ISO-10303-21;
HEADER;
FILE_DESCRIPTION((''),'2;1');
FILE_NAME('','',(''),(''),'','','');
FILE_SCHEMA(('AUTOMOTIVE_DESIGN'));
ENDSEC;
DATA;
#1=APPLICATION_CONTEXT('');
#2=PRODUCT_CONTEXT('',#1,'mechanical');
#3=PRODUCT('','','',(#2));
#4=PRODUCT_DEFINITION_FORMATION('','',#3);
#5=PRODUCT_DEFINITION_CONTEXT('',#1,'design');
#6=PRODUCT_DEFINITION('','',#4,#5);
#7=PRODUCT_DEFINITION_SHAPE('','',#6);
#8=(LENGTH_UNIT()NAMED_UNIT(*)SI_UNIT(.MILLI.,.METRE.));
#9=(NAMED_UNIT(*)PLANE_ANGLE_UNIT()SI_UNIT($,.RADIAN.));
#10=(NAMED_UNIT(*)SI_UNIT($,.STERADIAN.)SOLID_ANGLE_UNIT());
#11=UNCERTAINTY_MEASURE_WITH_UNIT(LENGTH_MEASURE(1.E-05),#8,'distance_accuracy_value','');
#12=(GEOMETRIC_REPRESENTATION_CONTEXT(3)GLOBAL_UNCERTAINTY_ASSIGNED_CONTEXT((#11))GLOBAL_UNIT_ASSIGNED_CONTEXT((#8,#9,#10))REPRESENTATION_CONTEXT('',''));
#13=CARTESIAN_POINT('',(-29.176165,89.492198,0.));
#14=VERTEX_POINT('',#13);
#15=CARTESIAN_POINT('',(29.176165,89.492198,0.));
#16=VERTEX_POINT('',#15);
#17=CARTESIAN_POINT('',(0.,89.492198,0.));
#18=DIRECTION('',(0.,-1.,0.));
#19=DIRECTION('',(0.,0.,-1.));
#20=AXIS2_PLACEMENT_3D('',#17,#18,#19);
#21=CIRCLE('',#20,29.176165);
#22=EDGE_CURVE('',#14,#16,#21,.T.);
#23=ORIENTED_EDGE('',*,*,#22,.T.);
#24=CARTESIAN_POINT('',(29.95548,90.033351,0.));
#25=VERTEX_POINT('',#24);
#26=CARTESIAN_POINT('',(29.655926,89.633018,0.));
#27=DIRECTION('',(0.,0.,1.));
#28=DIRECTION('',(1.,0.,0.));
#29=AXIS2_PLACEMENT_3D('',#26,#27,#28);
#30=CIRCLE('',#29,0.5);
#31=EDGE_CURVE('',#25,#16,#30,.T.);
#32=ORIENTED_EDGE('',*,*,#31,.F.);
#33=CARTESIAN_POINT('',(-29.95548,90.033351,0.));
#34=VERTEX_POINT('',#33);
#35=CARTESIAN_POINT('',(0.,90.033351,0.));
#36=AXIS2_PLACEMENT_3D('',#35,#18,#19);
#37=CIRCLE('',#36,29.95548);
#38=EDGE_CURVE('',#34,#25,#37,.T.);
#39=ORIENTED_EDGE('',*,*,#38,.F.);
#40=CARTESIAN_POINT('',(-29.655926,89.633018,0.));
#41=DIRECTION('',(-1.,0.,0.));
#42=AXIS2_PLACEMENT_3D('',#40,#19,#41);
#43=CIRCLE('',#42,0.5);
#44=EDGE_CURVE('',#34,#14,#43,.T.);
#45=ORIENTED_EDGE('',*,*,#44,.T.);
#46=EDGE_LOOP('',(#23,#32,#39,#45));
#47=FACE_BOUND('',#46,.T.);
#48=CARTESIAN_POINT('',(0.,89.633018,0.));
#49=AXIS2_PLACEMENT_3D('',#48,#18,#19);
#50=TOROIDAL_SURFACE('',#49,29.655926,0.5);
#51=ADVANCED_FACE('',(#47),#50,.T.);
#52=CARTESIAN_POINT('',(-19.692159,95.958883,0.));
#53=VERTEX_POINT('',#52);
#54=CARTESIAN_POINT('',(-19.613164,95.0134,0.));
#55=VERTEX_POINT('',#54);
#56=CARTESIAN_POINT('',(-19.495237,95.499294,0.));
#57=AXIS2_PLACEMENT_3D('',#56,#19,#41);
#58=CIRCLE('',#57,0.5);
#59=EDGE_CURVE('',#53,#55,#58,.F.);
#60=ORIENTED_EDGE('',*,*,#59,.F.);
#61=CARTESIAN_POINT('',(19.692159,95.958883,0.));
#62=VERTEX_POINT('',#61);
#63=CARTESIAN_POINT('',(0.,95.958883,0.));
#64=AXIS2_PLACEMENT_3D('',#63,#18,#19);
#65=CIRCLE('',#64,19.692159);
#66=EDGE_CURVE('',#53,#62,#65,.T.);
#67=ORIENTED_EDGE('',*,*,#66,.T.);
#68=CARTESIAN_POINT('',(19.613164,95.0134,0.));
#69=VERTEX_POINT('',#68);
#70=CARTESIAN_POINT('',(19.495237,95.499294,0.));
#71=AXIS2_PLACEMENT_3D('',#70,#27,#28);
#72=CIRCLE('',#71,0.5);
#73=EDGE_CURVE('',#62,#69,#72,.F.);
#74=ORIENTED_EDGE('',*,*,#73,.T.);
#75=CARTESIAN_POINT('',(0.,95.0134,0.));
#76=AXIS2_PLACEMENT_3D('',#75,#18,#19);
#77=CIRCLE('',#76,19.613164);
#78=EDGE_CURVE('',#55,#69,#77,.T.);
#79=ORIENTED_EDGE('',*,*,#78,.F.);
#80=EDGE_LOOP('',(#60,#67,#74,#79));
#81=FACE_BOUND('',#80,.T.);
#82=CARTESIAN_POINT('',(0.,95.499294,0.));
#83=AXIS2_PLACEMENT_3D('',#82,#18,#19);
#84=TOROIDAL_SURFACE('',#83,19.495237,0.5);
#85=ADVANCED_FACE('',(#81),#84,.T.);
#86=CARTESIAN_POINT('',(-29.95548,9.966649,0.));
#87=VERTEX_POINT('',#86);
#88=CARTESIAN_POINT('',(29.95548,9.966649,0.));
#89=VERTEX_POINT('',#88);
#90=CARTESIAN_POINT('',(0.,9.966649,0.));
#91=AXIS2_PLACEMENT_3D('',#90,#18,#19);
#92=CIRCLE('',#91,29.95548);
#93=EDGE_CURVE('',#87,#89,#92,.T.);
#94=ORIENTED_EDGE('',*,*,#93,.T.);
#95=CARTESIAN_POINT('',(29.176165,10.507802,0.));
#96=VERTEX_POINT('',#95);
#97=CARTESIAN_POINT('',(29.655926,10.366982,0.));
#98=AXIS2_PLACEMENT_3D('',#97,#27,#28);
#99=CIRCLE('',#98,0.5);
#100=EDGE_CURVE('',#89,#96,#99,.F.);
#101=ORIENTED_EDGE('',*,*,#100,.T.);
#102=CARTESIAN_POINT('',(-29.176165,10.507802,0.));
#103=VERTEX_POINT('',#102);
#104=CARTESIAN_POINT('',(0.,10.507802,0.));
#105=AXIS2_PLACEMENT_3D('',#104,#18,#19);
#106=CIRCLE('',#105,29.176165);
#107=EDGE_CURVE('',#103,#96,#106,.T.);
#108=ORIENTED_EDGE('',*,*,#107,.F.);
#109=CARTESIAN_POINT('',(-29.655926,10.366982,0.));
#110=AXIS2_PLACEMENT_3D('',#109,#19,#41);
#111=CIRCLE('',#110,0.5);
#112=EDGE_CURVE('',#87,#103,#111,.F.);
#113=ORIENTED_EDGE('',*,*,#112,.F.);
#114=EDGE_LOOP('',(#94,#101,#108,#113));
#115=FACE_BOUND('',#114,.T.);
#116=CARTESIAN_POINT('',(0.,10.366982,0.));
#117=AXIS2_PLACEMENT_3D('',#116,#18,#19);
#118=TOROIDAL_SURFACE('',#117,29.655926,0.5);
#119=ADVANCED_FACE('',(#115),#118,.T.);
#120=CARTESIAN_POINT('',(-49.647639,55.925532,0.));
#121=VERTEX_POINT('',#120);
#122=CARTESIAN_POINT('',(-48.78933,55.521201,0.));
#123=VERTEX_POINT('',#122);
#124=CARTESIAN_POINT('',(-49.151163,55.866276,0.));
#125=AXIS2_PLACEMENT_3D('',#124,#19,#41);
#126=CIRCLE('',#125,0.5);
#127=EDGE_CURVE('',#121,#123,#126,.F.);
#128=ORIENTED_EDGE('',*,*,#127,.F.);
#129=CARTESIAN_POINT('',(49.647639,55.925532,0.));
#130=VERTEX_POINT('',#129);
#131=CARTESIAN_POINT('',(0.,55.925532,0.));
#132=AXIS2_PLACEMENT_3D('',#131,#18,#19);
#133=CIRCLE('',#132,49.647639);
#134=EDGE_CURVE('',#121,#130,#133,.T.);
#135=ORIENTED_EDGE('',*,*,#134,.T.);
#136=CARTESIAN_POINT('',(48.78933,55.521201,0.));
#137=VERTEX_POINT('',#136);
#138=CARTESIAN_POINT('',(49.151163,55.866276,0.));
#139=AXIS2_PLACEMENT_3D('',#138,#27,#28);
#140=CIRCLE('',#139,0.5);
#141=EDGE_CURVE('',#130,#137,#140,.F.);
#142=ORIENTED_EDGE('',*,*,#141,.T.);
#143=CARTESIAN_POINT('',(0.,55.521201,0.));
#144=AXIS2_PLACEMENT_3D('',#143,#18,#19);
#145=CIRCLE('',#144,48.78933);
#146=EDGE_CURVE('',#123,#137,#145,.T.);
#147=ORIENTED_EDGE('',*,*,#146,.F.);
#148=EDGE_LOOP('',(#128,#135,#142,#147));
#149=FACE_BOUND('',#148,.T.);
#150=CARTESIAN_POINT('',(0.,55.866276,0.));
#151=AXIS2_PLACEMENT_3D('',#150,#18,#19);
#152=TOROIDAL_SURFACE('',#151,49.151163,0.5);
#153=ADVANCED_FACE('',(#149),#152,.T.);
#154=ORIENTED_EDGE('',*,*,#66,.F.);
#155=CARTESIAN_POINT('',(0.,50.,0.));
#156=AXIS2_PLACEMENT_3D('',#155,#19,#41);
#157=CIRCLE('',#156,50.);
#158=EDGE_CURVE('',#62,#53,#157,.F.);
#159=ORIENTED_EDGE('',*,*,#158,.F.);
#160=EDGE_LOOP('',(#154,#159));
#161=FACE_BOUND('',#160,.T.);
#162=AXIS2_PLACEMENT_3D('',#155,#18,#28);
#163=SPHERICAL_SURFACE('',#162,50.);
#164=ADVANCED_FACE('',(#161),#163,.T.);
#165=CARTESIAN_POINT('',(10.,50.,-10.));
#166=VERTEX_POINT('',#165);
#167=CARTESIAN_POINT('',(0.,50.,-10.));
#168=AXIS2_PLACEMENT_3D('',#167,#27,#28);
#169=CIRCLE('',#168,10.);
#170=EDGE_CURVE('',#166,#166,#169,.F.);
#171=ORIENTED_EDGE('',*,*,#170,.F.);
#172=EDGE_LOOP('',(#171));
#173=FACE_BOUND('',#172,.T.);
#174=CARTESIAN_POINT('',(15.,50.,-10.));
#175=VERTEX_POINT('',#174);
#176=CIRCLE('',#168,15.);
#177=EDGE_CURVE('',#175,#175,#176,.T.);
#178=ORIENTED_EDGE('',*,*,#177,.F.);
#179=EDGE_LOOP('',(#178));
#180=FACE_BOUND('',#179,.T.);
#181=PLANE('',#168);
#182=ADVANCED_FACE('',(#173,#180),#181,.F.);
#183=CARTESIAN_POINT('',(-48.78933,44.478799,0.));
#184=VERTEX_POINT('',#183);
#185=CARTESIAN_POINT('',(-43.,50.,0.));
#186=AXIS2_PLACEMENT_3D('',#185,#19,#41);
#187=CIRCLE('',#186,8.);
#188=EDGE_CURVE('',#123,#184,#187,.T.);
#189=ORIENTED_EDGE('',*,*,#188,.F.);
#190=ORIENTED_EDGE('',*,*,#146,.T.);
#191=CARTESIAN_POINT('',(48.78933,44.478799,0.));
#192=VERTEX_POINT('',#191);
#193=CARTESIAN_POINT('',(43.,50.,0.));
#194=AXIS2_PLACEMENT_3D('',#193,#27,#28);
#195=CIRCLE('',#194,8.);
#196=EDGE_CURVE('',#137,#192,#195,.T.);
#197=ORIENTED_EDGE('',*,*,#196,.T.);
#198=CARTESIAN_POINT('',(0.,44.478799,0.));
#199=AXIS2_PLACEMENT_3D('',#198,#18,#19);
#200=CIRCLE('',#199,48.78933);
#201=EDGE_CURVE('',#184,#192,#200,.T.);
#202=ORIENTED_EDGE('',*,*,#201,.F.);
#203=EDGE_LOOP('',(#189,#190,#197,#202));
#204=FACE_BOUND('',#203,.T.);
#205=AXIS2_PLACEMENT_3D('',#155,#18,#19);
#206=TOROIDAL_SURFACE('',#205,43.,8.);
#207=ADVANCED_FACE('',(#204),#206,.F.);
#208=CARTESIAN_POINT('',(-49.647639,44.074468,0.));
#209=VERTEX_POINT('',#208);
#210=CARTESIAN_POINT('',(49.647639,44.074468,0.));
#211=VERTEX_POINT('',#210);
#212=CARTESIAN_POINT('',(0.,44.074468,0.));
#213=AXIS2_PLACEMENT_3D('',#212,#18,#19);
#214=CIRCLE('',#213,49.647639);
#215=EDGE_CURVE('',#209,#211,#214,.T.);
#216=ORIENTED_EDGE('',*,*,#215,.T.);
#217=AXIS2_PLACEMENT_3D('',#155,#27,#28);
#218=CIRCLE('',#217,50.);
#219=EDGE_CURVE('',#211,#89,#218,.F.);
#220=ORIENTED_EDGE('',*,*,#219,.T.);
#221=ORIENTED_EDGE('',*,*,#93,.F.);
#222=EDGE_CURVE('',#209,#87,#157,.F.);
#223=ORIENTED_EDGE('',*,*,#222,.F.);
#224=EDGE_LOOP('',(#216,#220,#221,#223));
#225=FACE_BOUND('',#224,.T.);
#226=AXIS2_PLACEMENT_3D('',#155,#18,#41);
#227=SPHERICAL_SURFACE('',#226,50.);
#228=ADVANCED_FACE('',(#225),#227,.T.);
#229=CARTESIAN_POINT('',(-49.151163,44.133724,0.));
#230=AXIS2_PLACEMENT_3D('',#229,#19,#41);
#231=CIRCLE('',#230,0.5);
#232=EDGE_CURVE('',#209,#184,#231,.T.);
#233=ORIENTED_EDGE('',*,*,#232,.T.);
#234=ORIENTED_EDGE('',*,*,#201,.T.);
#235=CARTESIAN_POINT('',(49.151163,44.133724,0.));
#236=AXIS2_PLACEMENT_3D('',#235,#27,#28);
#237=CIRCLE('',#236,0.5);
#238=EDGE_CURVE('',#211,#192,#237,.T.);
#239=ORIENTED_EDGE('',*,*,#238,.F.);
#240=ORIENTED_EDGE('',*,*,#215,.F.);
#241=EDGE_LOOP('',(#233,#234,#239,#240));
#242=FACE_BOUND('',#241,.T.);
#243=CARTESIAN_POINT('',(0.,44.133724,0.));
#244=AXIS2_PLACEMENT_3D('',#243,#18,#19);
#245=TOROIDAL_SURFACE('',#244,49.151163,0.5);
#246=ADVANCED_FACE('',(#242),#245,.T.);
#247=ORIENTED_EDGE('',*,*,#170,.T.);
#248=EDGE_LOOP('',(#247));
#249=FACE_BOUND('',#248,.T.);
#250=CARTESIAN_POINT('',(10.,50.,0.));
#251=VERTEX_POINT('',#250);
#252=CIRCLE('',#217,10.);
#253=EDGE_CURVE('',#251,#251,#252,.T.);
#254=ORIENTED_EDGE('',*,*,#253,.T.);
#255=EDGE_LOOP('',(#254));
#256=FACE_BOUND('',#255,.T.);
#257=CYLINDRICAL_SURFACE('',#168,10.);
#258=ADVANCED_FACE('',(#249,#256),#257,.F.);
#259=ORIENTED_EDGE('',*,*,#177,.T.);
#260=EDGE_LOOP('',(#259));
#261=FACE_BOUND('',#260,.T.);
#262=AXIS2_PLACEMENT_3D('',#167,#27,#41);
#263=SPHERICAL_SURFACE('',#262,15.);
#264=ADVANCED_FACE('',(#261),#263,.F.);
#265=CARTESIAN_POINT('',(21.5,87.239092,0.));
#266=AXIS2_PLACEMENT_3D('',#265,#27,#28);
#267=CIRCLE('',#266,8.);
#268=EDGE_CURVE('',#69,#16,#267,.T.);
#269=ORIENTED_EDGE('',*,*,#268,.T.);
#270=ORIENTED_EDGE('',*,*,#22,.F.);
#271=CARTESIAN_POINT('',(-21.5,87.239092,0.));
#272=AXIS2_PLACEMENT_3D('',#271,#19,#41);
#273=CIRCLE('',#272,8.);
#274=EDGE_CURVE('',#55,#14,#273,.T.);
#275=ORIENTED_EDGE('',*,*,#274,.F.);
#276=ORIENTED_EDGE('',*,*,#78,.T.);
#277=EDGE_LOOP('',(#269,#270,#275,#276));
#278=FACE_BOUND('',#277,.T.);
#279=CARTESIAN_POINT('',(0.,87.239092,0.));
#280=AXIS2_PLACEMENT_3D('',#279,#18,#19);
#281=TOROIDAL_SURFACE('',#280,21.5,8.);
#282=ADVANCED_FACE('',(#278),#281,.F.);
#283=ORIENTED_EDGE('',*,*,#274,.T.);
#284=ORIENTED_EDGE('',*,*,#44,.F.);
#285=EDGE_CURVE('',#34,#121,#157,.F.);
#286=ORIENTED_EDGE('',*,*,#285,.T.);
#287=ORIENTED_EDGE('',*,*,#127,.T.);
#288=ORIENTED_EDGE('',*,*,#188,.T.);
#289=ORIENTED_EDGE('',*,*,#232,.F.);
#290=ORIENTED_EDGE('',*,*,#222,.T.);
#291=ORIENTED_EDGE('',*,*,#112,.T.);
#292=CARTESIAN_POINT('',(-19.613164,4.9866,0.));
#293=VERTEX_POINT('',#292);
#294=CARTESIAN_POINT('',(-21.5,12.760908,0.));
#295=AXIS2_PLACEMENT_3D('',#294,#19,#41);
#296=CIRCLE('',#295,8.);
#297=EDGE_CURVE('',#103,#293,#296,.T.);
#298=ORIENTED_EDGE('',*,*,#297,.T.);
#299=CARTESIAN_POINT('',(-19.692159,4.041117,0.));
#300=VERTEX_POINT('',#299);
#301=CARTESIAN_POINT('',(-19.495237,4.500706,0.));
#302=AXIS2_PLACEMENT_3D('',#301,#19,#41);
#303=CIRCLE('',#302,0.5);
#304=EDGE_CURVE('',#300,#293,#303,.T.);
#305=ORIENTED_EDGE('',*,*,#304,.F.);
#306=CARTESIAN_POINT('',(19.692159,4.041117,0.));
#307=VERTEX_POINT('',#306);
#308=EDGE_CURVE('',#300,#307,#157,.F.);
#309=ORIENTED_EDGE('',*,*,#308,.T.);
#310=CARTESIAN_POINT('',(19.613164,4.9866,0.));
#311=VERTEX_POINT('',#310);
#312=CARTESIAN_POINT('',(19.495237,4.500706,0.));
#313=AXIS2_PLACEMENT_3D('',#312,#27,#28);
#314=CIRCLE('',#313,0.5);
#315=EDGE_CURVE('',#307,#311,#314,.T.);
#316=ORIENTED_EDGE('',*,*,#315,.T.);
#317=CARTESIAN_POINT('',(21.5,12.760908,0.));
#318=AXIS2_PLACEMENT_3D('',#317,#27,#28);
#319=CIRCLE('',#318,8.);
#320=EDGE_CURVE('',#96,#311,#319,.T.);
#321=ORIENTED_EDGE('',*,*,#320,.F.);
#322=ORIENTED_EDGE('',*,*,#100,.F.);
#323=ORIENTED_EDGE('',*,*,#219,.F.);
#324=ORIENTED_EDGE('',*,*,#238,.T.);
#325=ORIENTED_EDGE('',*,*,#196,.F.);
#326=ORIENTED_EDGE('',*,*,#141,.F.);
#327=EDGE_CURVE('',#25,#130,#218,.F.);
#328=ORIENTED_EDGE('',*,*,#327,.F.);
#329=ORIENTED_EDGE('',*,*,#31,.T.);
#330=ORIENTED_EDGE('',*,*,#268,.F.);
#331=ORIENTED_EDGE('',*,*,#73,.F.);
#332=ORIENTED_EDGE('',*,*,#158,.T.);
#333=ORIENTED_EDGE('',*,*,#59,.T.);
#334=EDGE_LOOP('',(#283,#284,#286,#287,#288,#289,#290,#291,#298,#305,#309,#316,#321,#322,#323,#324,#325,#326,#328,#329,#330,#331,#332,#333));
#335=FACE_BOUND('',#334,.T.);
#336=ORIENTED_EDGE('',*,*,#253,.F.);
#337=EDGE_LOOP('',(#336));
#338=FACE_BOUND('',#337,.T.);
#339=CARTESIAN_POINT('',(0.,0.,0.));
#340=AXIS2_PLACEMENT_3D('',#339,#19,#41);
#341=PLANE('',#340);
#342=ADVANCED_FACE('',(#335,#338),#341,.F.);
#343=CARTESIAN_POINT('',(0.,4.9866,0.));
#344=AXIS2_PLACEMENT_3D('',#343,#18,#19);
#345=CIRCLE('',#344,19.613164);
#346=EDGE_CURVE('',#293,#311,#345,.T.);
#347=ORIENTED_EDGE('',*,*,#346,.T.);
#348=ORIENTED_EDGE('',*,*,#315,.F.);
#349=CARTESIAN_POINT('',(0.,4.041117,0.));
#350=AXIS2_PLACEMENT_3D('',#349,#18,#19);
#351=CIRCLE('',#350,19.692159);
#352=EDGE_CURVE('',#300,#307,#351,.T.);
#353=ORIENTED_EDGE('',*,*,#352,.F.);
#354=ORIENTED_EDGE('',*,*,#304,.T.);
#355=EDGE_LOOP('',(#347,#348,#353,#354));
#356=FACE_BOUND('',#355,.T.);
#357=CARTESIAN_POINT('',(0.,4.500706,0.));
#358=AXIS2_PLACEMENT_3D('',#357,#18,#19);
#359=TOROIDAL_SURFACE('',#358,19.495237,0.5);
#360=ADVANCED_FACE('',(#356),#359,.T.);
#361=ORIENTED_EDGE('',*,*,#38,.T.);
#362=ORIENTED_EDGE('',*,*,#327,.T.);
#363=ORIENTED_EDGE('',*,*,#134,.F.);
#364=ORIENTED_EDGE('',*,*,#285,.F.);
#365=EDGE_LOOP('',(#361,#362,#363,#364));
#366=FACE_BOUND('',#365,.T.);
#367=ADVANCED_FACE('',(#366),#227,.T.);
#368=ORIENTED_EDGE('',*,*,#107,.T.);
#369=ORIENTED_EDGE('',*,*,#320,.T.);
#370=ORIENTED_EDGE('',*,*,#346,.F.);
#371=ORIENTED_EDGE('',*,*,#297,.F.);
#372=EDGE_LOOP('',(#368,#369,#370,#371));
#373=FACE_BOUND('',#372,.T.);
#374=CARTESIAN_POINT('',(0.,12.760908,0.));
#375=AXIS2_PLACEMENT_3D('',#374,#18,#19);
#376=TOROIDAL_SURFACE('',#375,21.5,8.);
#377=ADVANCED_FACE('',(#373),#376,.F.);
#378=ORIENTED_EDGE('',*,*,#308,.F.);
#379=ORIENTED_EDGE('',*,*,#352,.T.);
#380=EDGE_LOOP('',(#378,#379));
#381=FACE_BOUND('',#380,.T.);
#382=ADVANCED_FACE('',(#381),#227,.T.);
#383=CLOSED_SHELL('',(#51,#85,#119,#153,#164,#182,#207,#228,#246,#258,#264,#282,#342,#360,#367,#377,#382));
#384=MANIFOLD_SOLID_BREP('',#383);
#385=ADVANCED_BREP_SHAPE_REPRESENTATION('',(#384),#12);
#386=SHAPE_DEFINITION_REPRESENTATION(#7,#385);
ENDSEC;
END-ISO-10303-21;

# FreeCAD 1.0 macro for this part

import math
import FreeCAD as App
import Part
import Sketcher

doc = App.newDocument("Part")
body = doc.addObject("PartDesign::Body", "Body")

# Sketch on XY plane
sketch1 = body.newObject("Sketcher::SketchObject", "Sketch")
sketch1.AttachmentSupport = (doc.getObject("XY_Plane"), [""])
sketch1.MapMode = "FlatFace"
sketch1.addGeometry(Part.LineSegment(App.Vector(0, 100, 0), App.Vector(0, 0, 0)), False)
sketch1.addGeometry(Part.ArcOfCircle(Part.Circle(App.Vector(0, 50, 0), App.Vector(0, 0, 1), 50), math.radians(-90), math.radians(-67)), False)
sketch1.addGeometry(Part.ArcOfCircle(Part.Circle(App.Vector(19.5, 4.5, 0), App.Vector(0, 0, 1), 0.5), math.radians(-67), math.radians(76)), False)
sketch1.addGeometry(Part.ArcOfCircle(Part.Circle(App.Vector(21.5, 12.8, 0), App.Vector(0, 0, 1), 8), math.radians(-16), math.radians(256)), False)
sketch1.addGeometry(Part.ArcOfCircle(Part.Circle(App.Vector(29.7, 10.4, 0), App.Vector(0, 0, 1), 0.5), math.radians(164), math.radians(307)), False)
sketch1.addGeometry(Part.ArcOfCircle(Part.Circle(App.Vector(0, 50, 0), App.Vector(0, 0, 1), 50), math.radians(-53), math.radians(-7)), False)
sketch1.addGeometry(Part.ArcOfCircle(Part.Circle(App.Vector(49.2, 44.1, 0), App.Vector(0, 0, 1), 0.5), math.radians(-7), math.radians(136)), False)
sketch1.addGeometry(Part.ArcOfCircle(Part.Circle(App.Vector(43, 50, 0), App.Vector(0, 0, 1), 8), math.radians(44), math.radians(316)), False)
sketch1.addGeometry(Part.ArcOfCircle(Part.Circle(App.Vector(49.2, 55.9, 0), App.Vector(0, 0, 1), 0.5), math.radians(-136), math.radians(7)), False)
sketch1.addGeometry(Part.ArcOfCircle(Part.Circle(App.Vector(0, 50, 0), App.Vector(0, 0, 1), 50), math.radians(7), math.radians(53)), False)
sketch1.addGeometry(Part.ArcOfCircle(Part.Circle(App.Vector(29.7, 89.6, 0), App.Vector(0, 0, 1), 0.5), math.radians(53), math.radians(196)), False)
sketch1.addGeometry(Part.ArcOfCircle(Part.Circle(App.Vector(21.5, 87.2, 0), App.Vector(0, 0, 1), 8), math.radians(104), math.radians(376)), False)
sketch1.addGeometry(Part.ArcOfCircle(Part.Circle(App.Vector(19.5, 95.5, 0), App.Vector(0, 0, 1), 0.5), math.radians(-76), math.radians(67)), False)
sketch1.addGeometry(Part.ArcOfCircle(Part.Circle(App.Vector(0, 50, 0), App.Vector(0, 0, 1), 50), math.radians(67), math.radians(90)), False)
sketch1.addConstraint(Sketcher.Constraint("Coincident", 0, 2, 1, 1))
sketch1.addConstraint(Sketcher.Constraint("Tangent", 1, 2, 2, 1))
sketch1.addConstraint(Sketcher.Constraint("Tangent", 2, 2, 3, 2))
sketch1.addConstraint(Sketcher.Constraint("Tangent", 3, 1, 4, 1))
sketch1.addConstraint(Sketcher.Constraint("Tangent", 4, 2, 5, 1))
sketch1.addConstraint(Sketcher.Constraint("Tangent", 5, 2, 6, 1))
sketch1.addConstraint(Sketcher.Constraint("Tangent", 6, 2, 7, 2))
sketch1.addConstraint(Sketcher.Constraint("Tangent", 7, 1, 8, 1))
sketch1.addConstraint(Sketcher.Constraint("Tangent", 8, 2, 9, 1))
sketch1.addConstraint(Sketcher.Constraint("Tangent", 9, 2, 10, 1))
sketch1.addConstraint(Sketcher.Constraint("Tangent", 10, 2, 11, 2))
sketch1.addConstraint(Sketcher.Constraint("Tangent", 11, 1, 12, 1))
sketch1.addConstraint(Sketcher.Constraint("Tangent", 12, 2, 13, 1))
sketch1.addConstraint(Sketcher.Constraint("Coincident", 13, 2, 0, 1))
sketch1.addConstraint(Sketcher.Constraint("Vertical", 0))
sketch1.addConstraint(Sketcher.Constraint("Coincident", 0, 2, -1, 1))
sketch1.addConstraint(Sketcher.Constraint("Coincident", 5, 3, 1, 3))
sketch1.addConstraint(Sketcher.Constraint("Coincident", 9, 3, 1, 3))
sketch1.addConstraint(Sketcher.Constraint("Coincident", 13, 3, 1, 3))
sketch1.addConstraint(Sketcher.Constraint("Equal", 2, 4))
sketch1.addConstraint(Sketcher.Constraint("Equal", 1, 5))
sketch1.addConstraint(Sketcher.Constraint("Equal", 4, 6))
sketch1.addConstraint(Sketcher.Constraint("Equal", 3, 7))
sketch1.addConstraint(Sketcher.Constraint("Equal", 6, 8))
sketch1.addConstraint(Sketcher.Constraint("Equal", 5, 9))
sketch1.addConstraint(Sketcher.Constraint("Equal", 8, 10))
sketch1.addConstraint(Sketcher.Constraint("Equal", 7, 11))
sketch1.addConstraint(Sketcher.Constraint("Equal", 10, 12))
sketch1.addConstraint(Sketcher.Constraint("Equal", 9, 13))
sketch1.addConstraint(Sketcher.Constraint("PointOnObject", 1, 3, -2))
sketch1.addConstraint(Sketcher.Constraint("Horizontal", 5, 3, 7, 3))
sketch1.addConstraint(Sketcher.Constraint("Vertical", 4, 3, 10, 3))
sketch1.addConstraint(Sketcher.Constraint("Vertical", 3, 3, 11, 3))
sketch1.addConstraint(Sketcher.Constraint("Radius", 1, 50.0))
sketch1.addConstraint(Sketcher.Constraint("Radius", 3, 8.0))
sketch1.addConstraint(Sketcher.Constraint("Radius", 2, 0.5))
sketch1.addConstraint(Sketcher.Constraint("DistanceX", -1, 1, 7, 3, 43.0))
sketch1.addConstraint(Sketcher.Constraint("DistanceX", -1, 1, 3, 3, 21.5))
sketch1.addConstraint(Sketcher.Constraint("DistanceX", 2, 2, 3, 1, 9.563001))
revolution = body.newObject("PartDesign::Revolution", "Revolution")
revolution.Profile = sketch1
revolution.ReferenceAxis = (sketch1, ["V_Axis"])
revolution.Angle = 180

# Sketch on XY plane
sketch2 = body.newObject("Sketcher::SketchObject", "Sketch001")
sketch2.AttachmentSupport = (doc.getObject("XY_Plane"), [""])
sketch2.MapMode = "FlatFace"
sketch2.addGeometry(Part.Circle(App.Vector(0, 50, 0), App.Vector(0, 0, 1), 10), False)
sketch2.addConstraint(Sketcher.Constraint("PointOnObject", 0, 3, -2))
sketch2.addConstraint(Sketcher.Constraint("Diameter", 0, 20.0))
sketch2.addConstraint(Sketcher.Constraint("DistanceY", -1, 1, 0, 3, 50.0))
pocket1 = body.newObject("PartDesign::Pocket", "Pocket")
pocket1.Profile = sketch2
pocket1.Length = 10

# Sketch on XZ plane
sketch3 = body.newObject("Sketcher::SketchObject", "Sketch002")
sketch3.AttachmentSupport = (doc.getObject("XZ_Plane"), [""])
sketch3.MapMode = "FlatFace"
sketch3.AttachmentOffset = App.Placement(App.Vector(0, 0, -50), App.Rotation())
sketch3.addGeometry(Part.ArcOfCircle(Part.Circle(App.Vector(0, -10, 0), App.Vector(0, 0, 1), 15), math.radians(-90), math.radians(0)), False)
sketch3.addGeometry(Part.LineSegment(App.Vector(0, -25, 0), App.Vector(0, -10, 0)), False)
sketch3.addGeometry(Part.LineSegment(App.Vector(0, -10, 0), App.Vector(15, -10, 0)), False)
sketch3.addConstraint(Sketcher.Constraint("Coincident", 0, 1, 1, 1))
sketch3.addConstraint(Sketcher.Constraint("Coincident", 1, 2, 2, 1))
sketch3.addConstraint(Sketcher.Constraint("Coincident", 2, 2, 0, 2))
sketch3.addConstraint(Sketcher.Constraint("Vertical", 1))
sketch3.addConstraint(Sketcher.Constraint("Horizontal", 2))
sketch3.addConstraint(Sketcher.Constraint("Coincident", 1, 2, 0, 3))
sketch3.addConstraint(Sketcher.Constraint("PointOnObject", 0, 3, -2))
sketch3.addConstraint(Sketcher.Constraint("Radius", 0, 15.0))
sketch3.addConstraint(Sketcher.Constraint("DistanceY", 0, 3, -1, 1, 10.0))
groove = body.newObject("PartDesign::Groove", "Groove")
groove.Profile = sketch3
groove.ReferenceAxis = (sketch3, ["V_Axis"])
groove.Angle = 360

doc.recompute()
